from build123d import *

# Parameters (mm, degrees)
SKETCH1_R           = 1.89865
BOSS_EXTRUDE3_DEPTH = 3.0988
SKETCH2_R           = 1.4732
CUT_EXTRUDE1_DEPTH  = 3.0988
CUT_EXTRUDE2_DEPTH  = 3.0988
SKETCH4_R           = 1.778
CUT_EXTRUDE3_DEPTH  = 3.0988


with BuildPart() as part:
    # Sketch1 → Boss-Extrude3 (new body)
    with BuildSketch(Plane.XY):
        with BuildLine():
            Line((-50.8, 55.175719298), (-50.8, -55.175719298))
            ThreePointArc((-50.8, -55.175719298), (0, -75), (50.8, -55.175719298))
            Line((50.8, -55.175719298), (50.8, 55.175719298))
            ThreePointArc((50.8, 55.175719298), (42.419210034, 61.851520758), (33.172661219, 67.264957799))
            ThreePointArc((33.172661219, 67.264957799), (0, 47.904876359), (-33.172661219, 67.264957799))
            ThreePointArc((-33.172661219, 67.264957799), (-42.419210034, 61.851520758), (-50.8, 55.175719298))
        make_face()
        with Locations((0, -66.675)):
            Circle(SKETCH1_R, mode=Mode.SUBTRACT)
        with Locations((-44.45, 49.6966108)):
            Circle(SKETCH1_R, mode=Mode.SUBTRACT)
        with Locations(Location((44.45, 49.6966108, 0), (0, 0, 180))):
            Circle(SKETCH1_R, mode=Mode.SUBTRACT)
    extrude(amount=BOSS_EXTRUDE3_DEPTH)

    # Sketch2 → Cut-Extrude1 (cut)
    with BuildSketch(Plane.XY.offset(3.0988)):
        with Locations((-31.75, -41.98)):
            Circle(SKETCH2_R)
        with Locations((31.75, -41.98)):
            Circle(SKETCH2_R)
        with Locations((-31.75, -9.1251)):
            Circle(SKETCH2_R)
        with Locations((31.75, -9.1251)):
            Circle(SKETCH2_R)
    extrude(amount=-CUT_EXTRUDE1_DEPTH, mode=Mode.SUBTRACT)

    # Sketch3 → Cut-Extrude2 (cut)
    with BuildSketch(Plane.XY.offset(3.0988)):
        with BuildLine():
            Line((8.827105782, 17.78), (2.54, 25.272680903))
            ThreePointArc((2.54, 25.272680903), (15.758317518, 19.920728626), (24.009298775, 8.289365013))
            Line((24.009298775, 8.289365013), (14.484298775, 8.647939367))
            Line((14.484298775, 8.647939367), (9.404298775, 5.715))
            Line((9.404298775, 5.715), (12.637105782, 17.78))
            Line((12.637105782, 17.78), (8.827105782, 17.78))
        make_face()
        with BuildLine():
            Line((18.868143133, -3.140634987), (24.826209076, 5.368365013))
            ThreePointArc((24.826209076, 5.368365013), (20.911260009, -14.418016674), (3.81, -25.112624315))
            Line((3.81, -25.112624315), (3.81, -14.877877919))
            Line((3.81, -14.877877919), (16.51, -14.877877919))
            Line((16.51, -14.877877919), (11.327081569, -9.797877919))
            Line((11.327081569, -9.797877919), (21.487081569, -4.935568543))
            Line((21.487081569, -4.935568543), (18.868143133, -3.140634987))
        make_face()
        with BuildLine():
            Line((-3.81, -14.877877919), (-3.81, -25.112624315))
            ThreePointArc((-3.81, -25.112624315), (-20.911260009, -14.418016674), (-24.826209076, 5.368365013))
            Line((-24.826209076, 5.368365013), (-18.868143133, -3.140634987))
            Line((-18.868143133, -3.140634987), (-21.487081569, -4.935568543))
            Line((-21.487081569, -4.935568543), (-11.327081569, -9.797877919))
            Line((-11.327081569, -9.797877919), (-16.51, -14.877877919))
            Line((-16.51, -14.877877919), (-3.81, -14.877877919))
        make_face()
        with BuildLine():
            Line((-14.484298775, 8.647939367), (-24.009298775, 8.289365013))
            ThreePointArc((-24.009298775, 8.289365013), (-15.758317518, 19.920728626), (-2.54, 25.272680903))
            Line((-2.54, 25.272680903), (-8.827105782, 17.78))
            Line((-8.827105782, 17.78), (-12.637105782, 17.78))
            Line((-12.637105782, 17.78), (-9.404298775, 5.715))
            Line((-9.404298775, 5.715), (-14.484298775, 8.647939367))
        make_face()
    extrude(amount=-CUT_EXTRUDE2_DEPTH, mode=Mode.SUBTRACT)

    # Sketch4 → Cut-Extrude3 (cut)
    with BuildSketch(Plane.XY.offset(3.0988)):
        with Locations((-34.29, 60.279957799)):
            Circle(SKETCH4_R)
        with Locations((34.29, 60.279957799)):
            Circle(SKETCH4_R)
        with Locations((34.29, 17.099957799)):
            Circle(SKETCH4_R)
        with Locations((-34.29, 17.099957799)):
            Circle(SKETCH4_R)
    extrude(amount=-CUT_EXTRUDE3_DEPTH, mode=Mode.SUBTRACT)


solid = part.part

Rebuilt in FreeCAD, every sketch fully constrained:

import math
import FreeCAD as App
import Part
import Sketcher

V = App.Vector
Q = App.Units.Quantity

doc = App.newDocument("Part")
body = doc.addObject("PartDesign::Body", "Body")

# Sketch on XY plane
sketch1 = doc.addObject("Sketcher::SketchObject", "Sketch")
body.addObject(sketch1)
sketch1.AttachmentSupport = (doc.XY_Plane, [""])
sketch1.MapMode = "FlatFace"
sketch1.addGeometry([
    Part.LineSegment(V(-50.8, 55.175719, 0), V(-50.8, -55.175719, 0)),  # 0
    Part.ArcOfCircle(Part.Circle(V(0, 0, 0), V(0, 0, 1), 75), math.radians(-132.63561), math.radians(-47.36439)),  # 1
    Part.LineSegment(V(50.8, -55.175719, 0), V(50.8, 55.175719, 0)),  # 2
    Part.ArcOfCircle(Part.Circle(V(0, 0, 0), V(0, 0, 1), 75), math.radians(47.36439), math.radians(63.74914)),  # 3
    Part.ArcOfCircle(Part.Circle(V(0, 86.004876, 0), V(0, 0, 1), 38.1), math.radians(-150.537002), math.radians(-29.462998)),  # 4
    Part.ArcOfCircle(Part.Circle(V(0, 0, 0), V(0, 0, 1), 75), math.radians(116.25086), math.radians(132.63561)),  # 5
    Part.Circle(V(0, -66.675, 0), V(0, 0, 1), 1.89865),  # 6
    Part.Circle(V(-44.45, 49.696611, 0), V(0, 0, 1), 1.89865),  # 7
    Part.Circle(V(44.45, 49.696611, 0), V(0, 0, 1), 1.89865),  # 8
], False)
sketch1.addConstraint([
    Sketcher.Constraint("Coincident", 0, 2, 1, 1),
    Sketcher.Constraint("Coincident", 1, 2, 2, 1),
    Sketcher.Constraint("Coincident", 2, 2, 3, 1),
    Sketcher.Constraint("Coincident", 3, 2, 4, 2),
    Sketcher.Constraint("Coincident", 4, 1, 5, 1),
    Sketcher.Constraint("Coincident", 5, 2, 0, 1),
    Sketcher.Constraint("Vertical", 0),
    Sketcher.Constraint("Vertical", 2),
    Sketcher.Constraint("Coincident", 1, 3, -1, 1),
    Sketcher.Constraint("Coincident", 3, 3, -1, 1),
    Sketcher.Constraint("Coincident", 5, 3, -1, 1),
    Sketcher.Constraint("Equal", 1, 3),
    Sketcher.Constraint("Equal", 3, 5),
    Sketcher.Constraint("Equal", 6, 7),
    Sketcher.Constraint("Equal", 7, 8),
    Sketcher.Constraint("Symmetric", 7, 3, 8, 3, -2),
    Sketcher.Constraint("PointOnObject", 4, 3, -2),
    Sketcher.Constraint("PointOnObject", 6, 3, -2),
    Sketcher.Constraint("Horizontal", 0, 2, 1, 2),
    Sketcher.Constraint("Radius", 4, Q("1.5 in")),
    Sketcher.Constraint("DistanceX", 0, 2, -1, 1, Q("2 in")),
    Sketcher.Constraint("Diameter", 6, Q("0.1495 in")),
    Sketcher.Constraint("DistanceX", 7, 3, 8, 3, Q("3.5 in")),
    Sketcher.Constraint("Radius", 1, 75.0),
    Sketcher.Constraint("DistanceY", 6, 3, -1, 1, Q("2.625 in")),
    Sketcher.Constraint("DistanceY", -1, 1, 7, 3, 49.696611),
    Sketcher.Constraint("DistanceX", -1, 1, 3, 2, 33.172661),
])
pad1 = doc.addObject("PartDesign::Pad", "Pad")
body.addObject(pad1)
pad1.Profile = sketch1
pad1.Length = Q("0.122 in")

# Sketch on XY plane
sketch2 = doc.addObject("Sketcher::SketchObject", "Sketch001")
body.addObject(sketch2)
sketch2.AttachmentSupport = (doc.XY_Plane, [""])
sketch2.MapMode = "FlatFace"
sketch2.AttachmentOffset = App.Placement(V(0, 0, 0.122 * 25.4), App.Rotation())
sketch2.addGeometry([
    Part.Circle(V(-31.75, -41.98, 0), V(0, 0, 1), 1.4732),
    Part.Circle(V(31.75, -41.98, 0), V(0, 0, 1), 1.4732),
    Part.Circle(V(-31.75, -9.1251, 0), V(0, 0, 1), 1.4732),
    Part.Circle(V(31.75, -9.1251, 0), V(0, 0, 1), 1.4732),
], False)
sketch2.addConstraint([
    Sketcher.Constraint("Equal", 0, 1),
    Sketcher.Constraint("Equal", 1, 2),
    Sketcher.Constraint("Equal", 2, 3),
    Sketcher.Constraint("Symmetric", 0, 3, 1, 3, -2),
    Sketcher.Constraint("Symmetric", 2, 3, 3, 3, -2),
    Sketcher.Constraint("Vertical", 0, 3, 2, 3),
    Sketcher.Constraint("Diameter", 0, Q("0.116 in")),
    Sketcher.Constraint("DistanceX", 0, 3, 1, 3, Q("2.5 in")),
    Sketcher.Constraint("DistanceY", 0, 3, 2, 3, Q("1.2935 in")),
    Sketcher.Constraint("DistanceY", 0, 3, -1, 1, 41.98),
])
pocket1 = doc.addObject("PartDesign::Pocket", "Pocket")
body.addObject(pocket1)
pocket1.Profile = sketch2
pocket1.Length = Q("0.122 in")

# Sketch on XY plane
sketch3 = doc.addObject("Sketcher::SketchObject", "Sketch002")
body.addObject(sketch3)
sketch3.AttachmentSupport = (doc.XY_Plane, [""])
sketch3.MapMode = "FlatFace"
sketch3.AttachmentOffset = App.Placement(V(0, 0, 0.122 * 25.4), App.Rotation())
sketch3.addGeometry([
    Part.LineSegment(V(2.54, 25.272681, 0), V(8.827106, 17.78, 0)),  # 0
    Part.LineSegment(V(8.827106, 17.78, 0), V(12.637106, 17.78, 0)),  # 1
    Part.LineSegment(V(12.637106, 17.78, 0), V(9.404299, 5.715, 0)),  # 2
    Part.LineSegment(V(9.404299, 5.715, 0), V(14.484299, 8.647939, 0)),  # 3
    Part.LineSegment(V(14.484299, 8.647939, 0), V(24.009299, 8.289365, 0)),  # 4
    Part.ArcOfCircle(Part.Circle(V(0, 0, 0), V(0, 0, 1), 25.4), math.radians(19.047563), math.radians(84.26083)),  # 5
    Part.LineSegment(V(24.826209, 5.368365, 0), V(18.868143, -3.140635, 0)),  # 6
    Part.LineSegment(V(18.868143, -3.140635, 0), V(21.487082, -4.935569, 0)),  # 7
    Part.LineSegment(V(21.487082, -4.935569, 0), V(11.327082, -9.797878, 0)),  # 8
    Part.LineSegment(V(11.327082, -9.797878, 0), V(16.51, -14.877878, 0)),  # 9
    Part.LineSegment(V(16.51, -14.877878, 0), V(3.81, -14.877878, 0)),  # 10
    Part.LineSegment(V(3.81, -14.877878, 0), V(3.81, -25.112624, 0)),  # 11
    Part.ArcOfCircle(Part.Circle(V(0, 0, 0), V(0, 0, 1), 25.4), math.radians(-81.373073), math.radians(12.201651)),  # 12
    Part.LineSegment(V(-3.81, -25.112624, 0), V(-3.81, -14.877878, 0)),  # 13
    Part.LineSegment(V(-3.81, -14.877878, 0), V(-16.51, -14.877878, 0)),  # 14
    Part.LineSegment(V(-16.51, -14.877878, 0), V(-11.327082, -9.797878, 0)),  # 15
    Part.LineSegment(V(-11.327082, -9.797878, 0), V(-21.487082, -4.935569, 0)),  # 16
    Part.LineSegment(V(-21.487082, -4.935569, 0), V(-18.868143, -3.140635, 0)),  # 17
    Part.LineSegment(V(-18.868143, -3.140635, 0), V(-24.826209, 5.368365, 0)),  # 18
    Part.ArcOfCircle(Part.Circle(V(0, 0, 0), V(0, 0, 1), 25.4), math.radians(167.798349), math.radians(261.373073)),  # 19
    Part.LineSegment(V(-24.009299, 8.289365, 0), V(-14.484299, 8.647939, 0)),  # 20
    Part.LineSegment(V(-14.484299, 8.647939, 0), V(-9.404299, 5.715, 0)),  # 21
    Part.LineSegment(V(-9.404299, 5.715, 0), V(-12.637106, 17.78, 0)),  # 22
    Part.LineSegment(V(-12.637106, 17.78, 0), V(-8.827106, 17.78, 0)),  # 23
    Part.LineSegment(V(-8.827106, 17.78, 0), V(-2.54, 25.272681, 0)),  # 24
    Part.ArcOfCircle(Part.Circle(V(0, 0, 0), V(0, 0, 1), 25.4), math.radians(95.73917), math.radians(160.952437)),  # 25
], False)
sketch3.addConstraint([
    Sketcher.Constraint("Coincident", 0, 2, 1, 1),
    Sketcher.Constraint("Coincident", 1, 2, 2, 1),
    Sketcher.Constraint("Coincident", 2, 2, 3, 1),
    Sketcher.Constraint("Coincident", 3, 2, 4, 1),
    Sketcher.Constraint("Coincident", 4, 2, 5, 1),
    Sketcher.Constraint("Coincident", 5, 2, 0, 1),
    Sketcher.Constraint("Coincident", 6, 2, 7, 1),
    Sketcher.Constraint("Coincident", 7, 2, 8, 1),
    Sketcher.Constraint("Coincident", 8, 2, 9, 1),
    Sketcher.Constraint("Coincident", 9, 2, 10, 1),
    Sketcher.Constraint("Coincident", 10, 2, 11, 1),
    Sketcher.Constraint("Coincident", 11, 2, 12, 1),
    Sketcher.Constraint("Coincident", 12, 2, 6, 1),
    Sketcher.Constraint("Coincident", 13, 2, 14, 1),
    Sketcher.Constraint("Coincident", 14, 2, 15, 1),
    Sketcher.Constraint("Coincident", 15, 2, 16, 1),
    Sketcher.Constraint("Coincident", 16, 2, 17, 1),
    Sketcher.Constraint("Coincident", 17, 2, 18, 1),
    Sketcher.Constraint("Coincident", 18, 2, 19, 1),
    Sketcher.Constraint("Coincident", 19, 2, 13, 1),
    Sketcher.Constraint("Coincident", 20, 2, 21, 1),
    Sketcher.Constraint("Coincident", 21, 2, 22, 1),
    Sketcher.Constraint("Coincident", 22, 2, 23, 1),
    Sketcher.Constraint("Coincident", 23, 2, 24, 1),
    Sketcher.Constraint("Coincident", 24, 2, 25, 1),
    Sketcher.Constraint("Coincident", 25, 2, 20, 1),
    Sketcher.Constraint("Horizontal", 1),
    Sketcher.Constraint("Horizontal", 10),
    Sketcher.Constraint("Vertical", 11),
    Sketcher.Constraint("Vertical", 13),
    Sketcher.Constraint("Horizontal", 14),
    Sketcher.Constraint("Horizontal", 23),
    Sketcher.Constraint("Coincident", 5, 3, -1, 1),
    Sketcher.Constraint("Coincident", 12, 3, -1, 1),
    Sketcher.Constraint("Coincident", 19, 3, -1, 1),
    Sketcher.Constraint("Coincident", 25, 3, -1, 1),
    Sketcher.Constraint("Equal", 5, 12),
    Sketcher.Constraint("Equal", 12, 19),
    Sketcher.Constraint("Equal", 19, 25),
    Sketcher.Constraint("Symmetric", 10, 2, 13, 2, -2),
    Sketcher.Constraint("Symmetric", 8, 2, 15, 2, -2),
    Sketcher.Constraint("Symmetric", 7, 2, 16, 2, -2),
    Sketcher.Constraint("Symmetric", 6, 2, 17, 2, -2),
    Sketcher.Constraint("Symmetric", 3, 2, 20, 2, -2),
    Sketcher.Constraint("Symmetric", 2, 2, 21, 2, -2),
    Sketcher.Constraint("Symmetric", 1, 2, 22, 2, -2),
    Sketcher.Constraint("Horizontal", 12, 2, 18, 2),
    Sketcher.Constraint("Horizontal", 5, 2, 24, 2),
    Sketcher.Constraint("Horizontal", 4, 2, 25, 2),
    Sketcher.Constraint("Equal", 10, 14),
    Sketcher.Constraint("Equal", 1, 23),
    Sketcher.Constraint("Radius", 5, Q("1 in")),
    Sketcher.Constraint("DistanceX", 10, 2, 10, 1, Q("0.5 in")),
    Sketcher.Constraint("Angle", 0, Q("-50 deg")),
    Sketcher.Constraint("Angle", 2, Q("-105 deg")),
    Sketcher.Constraint("Angle", 3, Q("30 deg")),
    Sketcher.Constraint("Angle", 6, Q("-125 deg")),
    Sketcher.Constraint("DistanceX", 1, 1, 1, 2, Q("0.15 in")),
    Sketcher.Constraint("DistanceY", -1, 1, 0, 2, Q("0.7 in")),
    Sketcher.Constraint("DistanceX", -1, 1, 5, 2, Q("0.1 in")),
    Sketcher.Constraint("DistanceX", 2, 2, 3, 2, Q("0.2 in")),
    Sketcher.Constraint("DistanceX", 8, 2, 7, 2, Q("0.4 in")),
    Sketcher.Constraint("DistanceY", 9, 2, 8, 2, Q("0.2 in")),
    Sketcher.Constraint("DistanceX", 13, 2, 10, 2, Q("0.3 in")),
    Sketcher.Constraint("DistanceY", 6, 2, 4, 2, Q("0.45 in")),
    Sketcher.Constraint("Distance", 7, Q("0.125 in")),
    Sketcher.Constraint("DistanceY", -1, 1, 2, 2, Q("0.225 in")),
    Sketcher.Constraint("DistanceX", 3, 2, 4, 2, Q("0.375 in")),
    Sketcher.Constraint("DistanceY", 12, 2, 4, 2, Q("0.115 in")),
    Sketcher.Constraint("DistanceX", 7, 2, 4, 2, Q("0.0992999 in")),
    Sketcher.Constraint("DistanceY", 11, 2, 11, 1, 10.234746),
])
pocket2 = doc.addObject("PartDesign::Pocket", "Pocket001")
body.addObject(pocket2)
pocket2.Profile = sketch3
pocket2.Length = Q("0.122 in")

# Sketch on XY plane
sketch4 = doc.addObject("Sketcher::SketchObject", "Sketch003")
body.addObject(sketch4)
sketch4.AttachmentSupport = (doc.XY_Plane, [""])
sketch4.MapMode = "FlatFace"
sketch4.AttachmentOffset = App.Placement(V(0, 0, 0.122 * 25.4), App.Rotation())
sketch4.addGeometry([
    Part.Circle(V(-34.29, 60.279958, 0), V(0, 0, 1), 1.778),
    Part.Circle(V(34.29, 60.279958, 0), V(0, 0, 1), 1.778),
    Part.Circle(V(34.29, 17.099958, 0), V(0, 0, 1), 1.778),
    Part.Circle(V(-34.29, 17.099958, 0), V(0, 0, 1), 1.778),
], False)
sketch4.addConstraint([
    Sketcher.Constraint("Equal", 0, 1),
    Sketcher.Constraint("Equal", 1, 2),
    Sketcher.Constraint("Equal", 2, 3),
    Sketcher.Constraint("Symmetric", 0, 3, 1, 3, -2),
    Sketcher.Constraint("Symmetric", 2, 3, 3, 3, -2),
    Sketcher.Constraint("Vertical", 1, 3, 2, 3),
    Sketcher.Constraint("Diameter", 0, Q("0.14 in")),
    Sketcher.Constraint("DistanceX", 0, 3, 1, 3, Q("2.7 in")),
    Sketcher.Constraint("DistanceY", 2, 3, 1, 3, Q("1.7 in")),
    Sketcher.Constraint("DistanceY", -1, 1, 0, 3, 60.279958),
])
pocket3 = doc.addObject("PartDesign::Pocket", "Pocket002")
body.addObject(pocket3)
pocket3.Profile = sketch4
pocket3.Length = Q("0.122 in")

doc.recompute()
